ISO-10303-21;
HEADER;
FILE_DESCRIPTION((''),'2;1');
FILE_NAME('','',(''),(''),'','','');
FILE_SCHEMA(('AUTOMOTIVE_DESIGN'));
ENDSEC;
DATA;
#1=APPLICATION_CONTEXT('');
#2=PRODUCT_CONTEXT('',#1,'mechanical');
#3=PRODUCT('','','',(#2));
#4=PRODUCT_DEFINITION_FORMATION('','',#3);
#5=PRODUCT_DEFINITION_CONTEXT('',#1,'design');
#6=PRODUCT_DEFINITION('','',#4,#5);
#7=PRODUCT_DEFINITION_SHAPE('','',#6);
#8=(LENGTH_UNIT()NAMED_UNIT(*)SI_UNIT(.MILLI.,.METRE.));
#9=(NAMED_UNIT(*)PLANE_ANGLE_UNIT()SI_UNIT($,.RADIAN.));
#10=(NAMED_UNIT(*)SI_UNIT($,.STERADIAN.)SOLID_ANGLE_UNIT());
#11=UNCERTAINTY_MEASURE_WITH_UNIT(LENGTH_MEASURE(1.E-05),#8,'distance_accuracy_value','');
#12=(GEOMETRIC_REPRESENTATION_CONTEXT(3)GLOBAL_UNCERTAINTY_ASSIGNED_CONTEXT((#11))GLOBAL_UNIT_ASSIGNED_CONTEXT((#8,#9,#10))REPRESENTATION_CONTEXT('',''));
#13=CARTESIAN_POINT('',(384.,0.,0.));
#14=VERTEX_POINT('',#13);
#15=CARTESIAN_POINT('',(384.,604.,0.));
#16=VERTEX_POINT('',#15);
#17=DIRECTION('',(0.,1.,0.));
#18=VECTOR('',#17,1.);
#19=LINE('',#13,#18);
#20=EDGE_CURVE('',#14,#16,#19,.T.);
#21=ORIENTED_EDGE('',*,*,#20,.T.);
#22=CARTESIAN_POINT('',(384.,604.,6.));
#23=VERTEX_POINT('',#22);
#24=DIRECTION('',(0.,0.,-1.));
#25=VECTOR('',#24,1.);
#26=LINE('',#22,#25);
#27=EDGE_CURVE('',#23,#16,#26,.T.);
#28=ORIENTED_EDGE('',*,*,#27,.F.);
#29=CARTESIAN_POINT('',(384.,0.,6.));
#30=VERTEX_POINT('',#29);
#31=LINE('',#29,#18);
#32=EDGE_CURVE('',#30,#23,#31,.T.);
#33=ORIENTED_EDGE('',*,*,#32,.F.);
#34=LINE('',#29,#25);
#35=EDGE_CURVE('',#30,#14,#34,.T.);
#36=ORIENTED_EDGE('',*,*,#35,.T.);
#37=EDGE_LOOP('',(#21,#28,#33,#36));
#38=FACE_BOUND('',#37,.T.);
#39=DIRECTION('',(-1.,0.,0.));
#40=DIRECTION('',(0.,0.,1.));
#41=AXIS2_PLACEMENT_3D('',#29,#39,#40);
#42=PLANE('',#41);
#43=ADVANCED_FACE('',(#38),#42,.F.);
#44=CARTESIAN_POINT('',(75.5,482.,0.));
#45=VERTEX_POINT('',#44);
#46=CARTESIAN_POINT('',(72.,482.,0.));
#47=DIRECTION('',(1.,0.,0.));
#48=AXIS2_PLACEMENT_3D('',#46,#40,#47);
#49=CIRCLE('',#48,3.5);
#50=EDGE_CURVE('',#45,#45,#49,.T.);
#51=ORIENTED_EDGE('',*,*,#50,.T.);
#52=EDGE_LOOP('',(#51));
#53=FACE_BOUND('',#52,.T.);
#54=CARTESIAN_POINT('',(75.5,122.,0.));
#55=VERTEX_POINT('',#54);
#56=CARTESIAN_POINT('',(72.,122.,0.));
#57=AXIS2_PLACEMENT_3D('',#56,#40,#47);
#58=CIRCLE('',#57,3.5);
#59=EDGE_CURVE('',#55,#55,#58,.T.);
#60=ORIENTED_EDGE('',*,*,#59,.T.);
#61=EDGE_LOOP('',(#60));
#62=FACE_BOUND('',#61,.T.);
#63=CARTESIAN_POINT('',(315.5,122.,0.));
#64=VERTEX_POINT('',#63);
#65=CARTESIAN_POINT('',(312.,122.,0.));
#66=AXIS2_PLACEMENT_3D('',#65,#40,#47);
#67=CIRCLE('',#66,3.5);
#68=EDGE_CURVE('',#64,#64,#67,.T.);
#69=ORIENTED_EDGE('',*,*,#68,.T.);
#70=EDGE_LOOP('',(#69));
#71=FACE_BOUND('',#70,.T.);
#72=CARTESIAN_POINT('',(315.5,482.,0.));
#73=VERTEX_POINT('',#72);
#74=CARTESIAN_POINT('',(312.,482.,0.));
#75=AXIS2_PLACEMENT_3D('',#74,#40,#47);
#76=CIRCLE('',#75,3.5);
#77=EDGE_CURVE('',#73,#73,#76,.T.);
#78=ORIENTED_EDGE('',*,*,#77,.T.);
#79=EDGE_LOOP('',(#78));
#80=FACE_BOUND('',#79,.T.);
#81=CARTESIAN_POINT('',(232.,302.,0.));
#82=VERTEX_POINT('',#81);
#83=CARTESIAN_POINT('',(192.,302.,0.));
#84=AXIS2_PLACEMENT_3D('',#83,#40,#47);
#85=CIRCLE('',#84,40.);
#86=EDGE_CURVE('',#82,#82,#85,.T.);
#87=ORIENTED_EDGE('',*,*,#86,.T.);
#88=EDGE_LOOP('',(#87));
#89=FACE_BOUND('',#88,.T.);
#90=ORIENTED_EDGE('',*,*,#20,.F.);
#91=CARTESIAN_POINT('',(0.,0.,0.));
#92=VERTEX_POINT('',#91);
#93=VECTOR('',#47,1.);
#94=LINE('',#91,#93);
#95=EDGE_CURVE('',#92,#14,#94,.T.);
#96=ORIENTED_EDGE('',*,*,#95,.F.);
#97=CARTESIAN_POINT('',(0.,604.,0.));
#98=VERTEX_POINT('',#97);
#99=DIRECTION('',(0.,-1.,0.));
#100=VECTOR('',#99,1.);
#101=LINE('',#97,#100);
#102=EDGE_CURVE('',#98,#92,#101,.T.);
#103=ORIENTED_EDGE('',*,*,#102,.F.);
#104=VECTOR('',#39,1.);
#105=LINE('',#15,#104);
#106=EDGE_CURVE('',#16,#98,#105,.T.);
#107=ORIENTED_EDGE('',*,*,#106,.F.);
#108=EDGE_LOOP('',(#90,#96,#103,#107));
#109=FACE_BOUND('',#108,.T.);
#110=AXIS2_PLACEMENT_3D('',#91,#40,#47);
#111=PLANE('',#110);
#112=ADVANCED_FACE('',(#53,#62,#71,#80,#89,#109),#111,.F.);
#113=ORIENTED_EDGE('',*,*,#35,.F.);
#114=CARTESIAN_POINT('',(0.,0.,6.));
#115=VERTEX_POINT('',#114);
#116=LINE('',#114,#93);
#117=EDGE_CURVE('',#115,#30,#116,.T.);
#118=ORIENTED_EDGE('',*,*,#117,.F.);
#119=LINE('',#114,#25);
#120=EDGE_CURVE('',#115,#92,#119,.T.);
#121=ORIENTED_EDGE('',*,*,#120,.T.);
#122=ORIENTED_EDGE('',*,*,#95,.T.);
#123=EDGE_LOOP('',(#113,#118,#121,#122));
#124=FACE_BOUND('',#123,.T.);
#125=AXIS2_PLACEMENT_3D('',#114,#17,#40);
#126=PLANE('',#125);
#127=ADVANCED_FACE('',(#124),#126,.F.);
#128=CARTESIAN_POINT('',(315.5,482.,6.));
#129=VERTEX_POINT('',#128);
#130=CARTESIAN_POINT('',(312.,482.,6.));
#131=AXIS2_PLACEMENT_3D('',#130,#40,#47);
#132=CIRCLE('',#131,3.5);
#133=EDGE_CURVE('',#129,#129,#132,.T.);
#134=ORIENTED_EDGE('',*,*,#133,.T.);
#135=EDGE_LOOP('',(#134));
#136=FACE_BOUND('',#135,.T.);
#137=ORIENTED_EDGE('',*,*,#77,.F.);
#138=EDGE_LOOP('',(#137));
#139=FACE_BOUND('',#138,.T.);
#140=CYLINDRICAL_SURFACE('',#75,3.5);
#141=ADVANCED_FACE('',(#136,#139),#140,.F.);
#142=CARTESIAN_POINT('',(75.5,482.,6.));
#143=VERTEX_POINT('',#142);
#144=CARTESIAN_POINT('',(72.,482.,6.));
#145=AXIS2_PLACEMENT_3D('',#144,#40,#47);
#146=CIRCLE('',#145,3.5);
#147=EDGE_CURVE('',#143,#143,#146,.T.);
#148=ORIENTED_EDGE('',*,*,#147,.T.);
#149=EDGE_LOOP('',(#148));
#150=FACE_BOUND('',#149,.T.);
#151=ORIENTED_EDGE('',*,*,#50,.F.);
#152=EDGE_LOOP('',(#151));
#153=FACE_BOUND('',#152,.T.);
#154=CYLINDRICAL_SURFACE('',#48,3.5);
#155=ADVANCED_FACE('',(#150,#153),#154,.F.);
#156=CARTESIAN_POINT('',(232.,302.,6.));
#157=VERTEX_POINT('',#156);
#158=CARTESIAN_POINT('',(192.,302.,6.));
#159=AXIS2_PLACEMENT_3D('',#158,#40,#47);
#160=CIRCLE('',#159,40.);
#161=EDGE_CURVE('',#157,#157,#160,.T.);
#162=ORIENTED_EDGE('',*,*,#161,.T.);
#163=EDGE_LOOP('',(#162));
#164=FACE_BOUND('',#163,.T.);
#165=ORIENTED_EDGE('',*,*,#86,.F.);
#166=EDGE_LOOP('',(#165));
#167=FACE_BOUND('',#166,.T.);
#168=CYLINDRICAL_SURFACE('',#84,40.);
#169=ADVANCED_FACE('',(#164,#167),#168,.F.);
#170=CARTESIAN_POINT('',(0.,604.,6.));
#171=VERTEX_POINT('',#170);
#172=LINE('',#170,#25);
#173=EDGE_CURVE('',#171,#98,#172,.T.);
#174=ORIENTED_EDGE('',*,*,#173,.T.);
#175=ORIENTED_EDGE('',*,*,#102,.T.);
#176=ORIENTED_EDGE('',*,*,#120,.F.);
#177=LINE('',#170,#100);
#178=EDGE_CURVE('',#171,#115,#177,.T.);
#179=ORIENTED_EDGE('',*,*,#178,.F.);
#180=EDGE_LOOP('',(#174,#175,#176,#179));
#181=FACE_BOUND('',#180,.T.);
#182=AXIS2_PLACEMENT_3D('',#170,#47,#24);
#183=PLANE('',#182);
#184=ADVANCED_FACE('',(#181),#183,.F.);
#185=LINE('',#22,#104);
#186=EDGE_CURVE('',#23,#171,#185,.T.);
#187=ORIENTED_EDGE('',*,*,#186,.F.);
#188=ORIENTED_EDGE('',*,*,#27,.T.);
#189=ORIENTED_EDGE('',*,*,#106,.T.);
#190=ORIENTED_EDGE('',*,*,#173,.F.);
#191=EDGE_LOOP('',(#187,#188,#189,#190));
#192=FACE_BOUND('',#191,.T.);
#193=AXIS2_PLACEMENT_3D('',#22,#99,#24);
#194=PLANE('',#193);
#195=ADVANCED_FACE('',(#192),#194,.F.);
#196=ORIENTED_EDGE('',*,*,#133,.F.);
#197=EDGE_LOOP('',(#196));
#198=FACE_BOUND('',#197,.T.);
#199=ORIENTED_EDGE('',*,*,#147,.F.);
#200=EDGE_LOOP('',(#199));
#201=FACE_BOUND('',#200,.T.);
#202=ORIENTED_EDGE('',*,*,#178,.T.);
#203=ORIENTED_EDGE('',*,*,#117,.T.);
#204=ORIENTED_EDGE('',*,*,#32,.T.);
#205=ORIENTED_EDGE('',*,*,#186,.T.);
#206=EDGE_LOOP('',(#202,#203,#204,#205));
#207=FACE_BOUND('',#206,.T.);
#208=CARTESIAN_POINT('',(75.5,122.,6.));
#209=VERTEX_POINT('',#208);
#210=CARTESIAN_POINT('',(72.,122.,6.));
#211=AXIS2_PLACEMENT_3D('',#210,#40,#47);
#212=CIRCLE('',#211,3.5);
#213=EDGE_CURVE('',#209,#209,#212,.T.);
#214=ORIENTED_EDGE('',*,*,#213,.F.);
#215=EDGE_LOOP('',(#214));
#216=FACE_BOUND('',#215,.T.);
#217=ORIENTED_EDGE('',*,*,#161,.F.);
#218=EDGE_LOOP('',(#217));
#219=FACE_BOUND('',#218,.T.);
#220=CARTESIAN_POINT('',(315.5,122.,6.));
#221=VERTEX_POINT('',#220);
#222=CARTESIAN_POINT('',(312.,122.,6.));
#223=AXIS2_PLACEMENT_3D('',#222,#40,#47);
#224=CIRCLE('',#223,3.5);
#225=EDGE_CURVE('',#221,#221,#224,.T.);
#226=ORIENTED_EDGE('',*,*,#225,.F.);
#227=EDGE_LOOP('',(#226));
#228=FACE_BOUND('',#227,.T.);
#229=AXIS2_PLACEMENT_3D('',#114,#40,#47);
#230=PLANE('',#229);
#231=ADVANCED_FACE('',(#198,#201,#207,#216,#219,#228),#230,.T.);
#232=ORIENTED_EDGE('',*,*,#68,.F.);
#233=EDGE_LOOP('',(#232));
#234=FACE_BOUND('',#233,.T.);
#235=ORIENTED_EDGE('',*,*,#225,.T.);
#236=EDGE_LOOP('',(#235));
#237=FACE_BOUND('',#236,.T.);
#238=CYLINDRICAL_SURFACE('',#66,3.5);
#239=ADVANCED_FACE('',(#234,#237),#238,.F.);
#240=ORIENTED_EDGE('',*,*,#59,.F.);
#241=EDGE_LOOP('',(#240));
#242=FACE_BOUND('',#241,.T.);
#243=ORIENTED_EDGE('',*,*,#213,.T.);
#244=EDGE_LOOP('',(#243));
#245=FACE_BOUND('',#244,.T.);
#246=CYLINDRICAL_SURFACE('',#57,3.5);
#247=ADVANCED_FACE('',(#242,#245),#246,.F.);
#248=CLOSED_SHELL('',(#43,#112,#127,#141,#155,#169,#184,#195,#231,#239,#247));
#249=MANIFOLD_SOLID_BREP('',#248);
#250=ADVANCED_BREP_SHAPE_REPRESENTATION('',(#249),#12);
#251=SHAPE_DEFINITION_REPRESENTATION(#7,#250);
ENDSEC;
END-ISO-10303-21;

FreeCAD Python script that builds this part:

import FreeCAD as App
import Part
import Sketcher
from FreeCAD import Vector


def add_polygon(sketch, points):
    """Adds a closed chain of lines whose ends are joined by coincident constraints."""
    first, n = sketch.GeometryCount, len(points)
    for a, b in zip(points, points[1:] + points[:1]):
        sketch.addGeometry(Part.LineSegment(App.Vector(*a, 0), App.Vector(*b, 0)), False)
    for i in range(n):
        sketch.addConstraint(Sketcher.Constraint("Coincident", first + i, 2, first + (i + 1) % n, 1))

doc = App.newDocument("Part")
params = doc.addObject("Spreadsheet::Sheet", "Params")
for row, (alias, value) in enumerate([
    ("sketch1_width", "384 mm"),
    ("sketch1_height", "604 mm"),
    ("pad1_length", "6 mm"),
    ("sketch2_diameter", "80 mm"),
    ("sketch3_diameter", "7 mm"),
    ("sketch4_diameter", "7 mm"),
    ("sketch5_diameter", "7 mm"),
    ("sketch6_diameter", "7 mm"),
], start=1):
    params.set(f"A{row}", alias)
    params.set(f"B{row}", "=" + value)
    params.setAlias(f"B{row}", alias)

body = doc.addObject("PartDesign::Body", "Body")

sketch1 = body.newObject("Sketcher::SketchObject", "Sketch")
sketch1.AttachmentSupport = (doc.getObject("XY_Plane"), [""])
sketch1.MapMode = "FlatFace"
add_polygon(sketch1, [(0, 604), (0, 0), (384, 0), (384, 604)])
sketch1.addConstraint([
    Sketcher.Constraint("Vertical", 0),
    Sketcher.Constraint("Horizontal", 1),
    Sketcher.Constraint("Vertical", 2),
    Sketcher.Constraint("Horizontal", 3),
    Sketcher.Constraint("Coincident", 0, 2, -1, 1),
    Sketcher.Constraint("DistanceX", 1, 1, 1, 2, 384.0),
    Sketcher.Constraint("DistanceY", 0, 2, 0, 1, 604.0),
])
sketch1.setExpression("Constraints[9]", "Params.sketch1_width")
sketch1.setExpression("Constraints[10]", "Params.sketch1_height")
pad1 = body.newObject("PartDesign::Pad", "Pad")
pad1.Profile = sketch1
pad1.setExpression("Length", "Params.pad1_length")

sketch2 = body.newObject("Sketcher::SketchObject", "Sketch001")
sketch2.AttachmentSupport = (doc.getObject("XY_Plane"), [""])
sketch2.MapMode = "FlatFace"
sketch2.AttachmentOffset = App.Placement(Vector(0, 0, 6), App.Rotation())
sketch2.addGeometry(Part.Circle(Vector(192, 302, 0), Vector(0, 0, 1), 40), False)
sketch2.addConstraint([
    Sketcher.Constraint("Diameter", 0, 80.0),
    Sketcher.Constraint("DistanceX", -1, 1, 0, 3, 192.0),
    Sketcher.Constraint("DistanceY", -1, 1, 0, 3, 302.0),
])
sketch2.setExpression("Constraints[0]", "Params.sketch2_diameter")
pocket1 = body.newObject("PartDesign::Pocket", "Pocket")
pocket1.Profile = sketch2
pocket1.Type = "ThroughAll"

sketch3 = body.newObject("Sketcher::SketchObject", "Sketch002")
sketch3.AttachmentSupport = (doc.getObject("XY_Plane"), [""])
sketch3.MapMode = "FlatFace"
sketch3.AttachmentOffset = App.Placement(Vector(0, 0, 6), App.Rotation())
sketch3.addGeometry(Part.Circle(Vector(72, 122, 0), Vector(0, 0, 1), 3.5), False)
sketch3.addConstraint([
    Sketcher.Constraint("Diameter", 0, 7.0),
    Sketcher.Constraint("DistanceX", -1, 1, 0, 3, 72.0),
    Sketcher.Constraint("DistanceY", -1, 1, 0, 3, 122.0),
])
sketch3.setExpression("Constraints[0]", "Params.sketch3_diameter")
pocket2 = body.newObject("PartDesign::Pocket", "Pocket001")
pocket2.Profile = sketch3
pocket2.Type = "ThroughAll"

sketch4 = body.newObject("Sketcher::SketchObject", "Sketch003")
sketch4.AttachmentSupport = (doc.getObject("XY_Plane"), [""])
sketch4.MapMode = "FlatFace"
sketch4.AttachmentOffset = App.Placement(Vector(0, 0, 6), App.Rotation())
sketch4.addGeometry(Part.Circle(Vector(72, 482, 0), Vector(0, 0, 1), 3.5), False)
sketch4.addConstraint([
    Sketcher.Constraint("Diameter", 0, 7.0),
    Sketcher.Constraint("DistanceX", -1, 1, 0, 3, 72.0),
    Sketcher.Constraint("DistanceY", -1, 1, 0, 3, 482.0),
])
sketch4.setExpression("Constraints[0]", "Params.sketch4_diameter")
pocket3 = body.newObject("PartDesign::Pocket", "Pocket002")
pocket3.Profile = sketch4
pocket3.Type = "ThroughAll"

sketch5 = body.newObject("Sketcher::SketchObject", "Sketch004")
sketch5.AttachmentSupport = (doc.getObject("XY_Plane"), [""])
sketch5.MapMode = "FlatFace"
sketch5.AttachmentOffset = App.Placement(Vector(0, 0, 6), App.Rotation())
sketch5.addGeometry(Part.Circle(Vector(312, 122, 0), Vector(0, 0, 1), 3.5), False)
sketch5.addConstraint([
    Sketcher.Constraint("Diameter", 0, 7.0),
    Sketcher.Constraint("DistanceX", -1, 1, 0, 3, 312.0),
    Sketcher.Constraint("DistanceY", -1, 1, 0, 3, 122.0),
])
sketch5.setExpression("Constraints[0]", "Params.sketch5_diameter")
pocket4 = body.newObject("PartDesign::Pocket", "Pocket003")
pocket4.Profile = sketch5
pocket4.Type = "ThroughAll"

sketch6 = body.newObject("Sketcher::SketchObject", "Sketch005")
sketch6.AttachmentSupport = (doc.getObject("XY_Plane"), [""])
sketch6.MapMode = "FlatFace"
sketch6.AttachmentOffset = App.Placement(Vector(0, 0, 6), App.Rotation())
sketch6.addGeometry(Part.Circle(Vector(312, 482, 0), Vector(0, 0, 1), 3.5), False)
sketch6.addConstraint([
    Sketcher.Constraint("Diameter", 0, 7.0),
    Sketcher.Constraint("DistanceX", -1, 1, 0, 3, 312.0),
    Sketcher.Constraint("DistanceY", -1, 1, 0, 3, 482.0),
])
sketch6.setExpression("Constraints[0]", "Params.sketch6_diameter")
pocket5 = body.newObject("PartDesign::Pocket", "Pocket004")
pocket5.Profile = sketch6
pocket5.Type = "ThroughAll"

doc.recompute()
